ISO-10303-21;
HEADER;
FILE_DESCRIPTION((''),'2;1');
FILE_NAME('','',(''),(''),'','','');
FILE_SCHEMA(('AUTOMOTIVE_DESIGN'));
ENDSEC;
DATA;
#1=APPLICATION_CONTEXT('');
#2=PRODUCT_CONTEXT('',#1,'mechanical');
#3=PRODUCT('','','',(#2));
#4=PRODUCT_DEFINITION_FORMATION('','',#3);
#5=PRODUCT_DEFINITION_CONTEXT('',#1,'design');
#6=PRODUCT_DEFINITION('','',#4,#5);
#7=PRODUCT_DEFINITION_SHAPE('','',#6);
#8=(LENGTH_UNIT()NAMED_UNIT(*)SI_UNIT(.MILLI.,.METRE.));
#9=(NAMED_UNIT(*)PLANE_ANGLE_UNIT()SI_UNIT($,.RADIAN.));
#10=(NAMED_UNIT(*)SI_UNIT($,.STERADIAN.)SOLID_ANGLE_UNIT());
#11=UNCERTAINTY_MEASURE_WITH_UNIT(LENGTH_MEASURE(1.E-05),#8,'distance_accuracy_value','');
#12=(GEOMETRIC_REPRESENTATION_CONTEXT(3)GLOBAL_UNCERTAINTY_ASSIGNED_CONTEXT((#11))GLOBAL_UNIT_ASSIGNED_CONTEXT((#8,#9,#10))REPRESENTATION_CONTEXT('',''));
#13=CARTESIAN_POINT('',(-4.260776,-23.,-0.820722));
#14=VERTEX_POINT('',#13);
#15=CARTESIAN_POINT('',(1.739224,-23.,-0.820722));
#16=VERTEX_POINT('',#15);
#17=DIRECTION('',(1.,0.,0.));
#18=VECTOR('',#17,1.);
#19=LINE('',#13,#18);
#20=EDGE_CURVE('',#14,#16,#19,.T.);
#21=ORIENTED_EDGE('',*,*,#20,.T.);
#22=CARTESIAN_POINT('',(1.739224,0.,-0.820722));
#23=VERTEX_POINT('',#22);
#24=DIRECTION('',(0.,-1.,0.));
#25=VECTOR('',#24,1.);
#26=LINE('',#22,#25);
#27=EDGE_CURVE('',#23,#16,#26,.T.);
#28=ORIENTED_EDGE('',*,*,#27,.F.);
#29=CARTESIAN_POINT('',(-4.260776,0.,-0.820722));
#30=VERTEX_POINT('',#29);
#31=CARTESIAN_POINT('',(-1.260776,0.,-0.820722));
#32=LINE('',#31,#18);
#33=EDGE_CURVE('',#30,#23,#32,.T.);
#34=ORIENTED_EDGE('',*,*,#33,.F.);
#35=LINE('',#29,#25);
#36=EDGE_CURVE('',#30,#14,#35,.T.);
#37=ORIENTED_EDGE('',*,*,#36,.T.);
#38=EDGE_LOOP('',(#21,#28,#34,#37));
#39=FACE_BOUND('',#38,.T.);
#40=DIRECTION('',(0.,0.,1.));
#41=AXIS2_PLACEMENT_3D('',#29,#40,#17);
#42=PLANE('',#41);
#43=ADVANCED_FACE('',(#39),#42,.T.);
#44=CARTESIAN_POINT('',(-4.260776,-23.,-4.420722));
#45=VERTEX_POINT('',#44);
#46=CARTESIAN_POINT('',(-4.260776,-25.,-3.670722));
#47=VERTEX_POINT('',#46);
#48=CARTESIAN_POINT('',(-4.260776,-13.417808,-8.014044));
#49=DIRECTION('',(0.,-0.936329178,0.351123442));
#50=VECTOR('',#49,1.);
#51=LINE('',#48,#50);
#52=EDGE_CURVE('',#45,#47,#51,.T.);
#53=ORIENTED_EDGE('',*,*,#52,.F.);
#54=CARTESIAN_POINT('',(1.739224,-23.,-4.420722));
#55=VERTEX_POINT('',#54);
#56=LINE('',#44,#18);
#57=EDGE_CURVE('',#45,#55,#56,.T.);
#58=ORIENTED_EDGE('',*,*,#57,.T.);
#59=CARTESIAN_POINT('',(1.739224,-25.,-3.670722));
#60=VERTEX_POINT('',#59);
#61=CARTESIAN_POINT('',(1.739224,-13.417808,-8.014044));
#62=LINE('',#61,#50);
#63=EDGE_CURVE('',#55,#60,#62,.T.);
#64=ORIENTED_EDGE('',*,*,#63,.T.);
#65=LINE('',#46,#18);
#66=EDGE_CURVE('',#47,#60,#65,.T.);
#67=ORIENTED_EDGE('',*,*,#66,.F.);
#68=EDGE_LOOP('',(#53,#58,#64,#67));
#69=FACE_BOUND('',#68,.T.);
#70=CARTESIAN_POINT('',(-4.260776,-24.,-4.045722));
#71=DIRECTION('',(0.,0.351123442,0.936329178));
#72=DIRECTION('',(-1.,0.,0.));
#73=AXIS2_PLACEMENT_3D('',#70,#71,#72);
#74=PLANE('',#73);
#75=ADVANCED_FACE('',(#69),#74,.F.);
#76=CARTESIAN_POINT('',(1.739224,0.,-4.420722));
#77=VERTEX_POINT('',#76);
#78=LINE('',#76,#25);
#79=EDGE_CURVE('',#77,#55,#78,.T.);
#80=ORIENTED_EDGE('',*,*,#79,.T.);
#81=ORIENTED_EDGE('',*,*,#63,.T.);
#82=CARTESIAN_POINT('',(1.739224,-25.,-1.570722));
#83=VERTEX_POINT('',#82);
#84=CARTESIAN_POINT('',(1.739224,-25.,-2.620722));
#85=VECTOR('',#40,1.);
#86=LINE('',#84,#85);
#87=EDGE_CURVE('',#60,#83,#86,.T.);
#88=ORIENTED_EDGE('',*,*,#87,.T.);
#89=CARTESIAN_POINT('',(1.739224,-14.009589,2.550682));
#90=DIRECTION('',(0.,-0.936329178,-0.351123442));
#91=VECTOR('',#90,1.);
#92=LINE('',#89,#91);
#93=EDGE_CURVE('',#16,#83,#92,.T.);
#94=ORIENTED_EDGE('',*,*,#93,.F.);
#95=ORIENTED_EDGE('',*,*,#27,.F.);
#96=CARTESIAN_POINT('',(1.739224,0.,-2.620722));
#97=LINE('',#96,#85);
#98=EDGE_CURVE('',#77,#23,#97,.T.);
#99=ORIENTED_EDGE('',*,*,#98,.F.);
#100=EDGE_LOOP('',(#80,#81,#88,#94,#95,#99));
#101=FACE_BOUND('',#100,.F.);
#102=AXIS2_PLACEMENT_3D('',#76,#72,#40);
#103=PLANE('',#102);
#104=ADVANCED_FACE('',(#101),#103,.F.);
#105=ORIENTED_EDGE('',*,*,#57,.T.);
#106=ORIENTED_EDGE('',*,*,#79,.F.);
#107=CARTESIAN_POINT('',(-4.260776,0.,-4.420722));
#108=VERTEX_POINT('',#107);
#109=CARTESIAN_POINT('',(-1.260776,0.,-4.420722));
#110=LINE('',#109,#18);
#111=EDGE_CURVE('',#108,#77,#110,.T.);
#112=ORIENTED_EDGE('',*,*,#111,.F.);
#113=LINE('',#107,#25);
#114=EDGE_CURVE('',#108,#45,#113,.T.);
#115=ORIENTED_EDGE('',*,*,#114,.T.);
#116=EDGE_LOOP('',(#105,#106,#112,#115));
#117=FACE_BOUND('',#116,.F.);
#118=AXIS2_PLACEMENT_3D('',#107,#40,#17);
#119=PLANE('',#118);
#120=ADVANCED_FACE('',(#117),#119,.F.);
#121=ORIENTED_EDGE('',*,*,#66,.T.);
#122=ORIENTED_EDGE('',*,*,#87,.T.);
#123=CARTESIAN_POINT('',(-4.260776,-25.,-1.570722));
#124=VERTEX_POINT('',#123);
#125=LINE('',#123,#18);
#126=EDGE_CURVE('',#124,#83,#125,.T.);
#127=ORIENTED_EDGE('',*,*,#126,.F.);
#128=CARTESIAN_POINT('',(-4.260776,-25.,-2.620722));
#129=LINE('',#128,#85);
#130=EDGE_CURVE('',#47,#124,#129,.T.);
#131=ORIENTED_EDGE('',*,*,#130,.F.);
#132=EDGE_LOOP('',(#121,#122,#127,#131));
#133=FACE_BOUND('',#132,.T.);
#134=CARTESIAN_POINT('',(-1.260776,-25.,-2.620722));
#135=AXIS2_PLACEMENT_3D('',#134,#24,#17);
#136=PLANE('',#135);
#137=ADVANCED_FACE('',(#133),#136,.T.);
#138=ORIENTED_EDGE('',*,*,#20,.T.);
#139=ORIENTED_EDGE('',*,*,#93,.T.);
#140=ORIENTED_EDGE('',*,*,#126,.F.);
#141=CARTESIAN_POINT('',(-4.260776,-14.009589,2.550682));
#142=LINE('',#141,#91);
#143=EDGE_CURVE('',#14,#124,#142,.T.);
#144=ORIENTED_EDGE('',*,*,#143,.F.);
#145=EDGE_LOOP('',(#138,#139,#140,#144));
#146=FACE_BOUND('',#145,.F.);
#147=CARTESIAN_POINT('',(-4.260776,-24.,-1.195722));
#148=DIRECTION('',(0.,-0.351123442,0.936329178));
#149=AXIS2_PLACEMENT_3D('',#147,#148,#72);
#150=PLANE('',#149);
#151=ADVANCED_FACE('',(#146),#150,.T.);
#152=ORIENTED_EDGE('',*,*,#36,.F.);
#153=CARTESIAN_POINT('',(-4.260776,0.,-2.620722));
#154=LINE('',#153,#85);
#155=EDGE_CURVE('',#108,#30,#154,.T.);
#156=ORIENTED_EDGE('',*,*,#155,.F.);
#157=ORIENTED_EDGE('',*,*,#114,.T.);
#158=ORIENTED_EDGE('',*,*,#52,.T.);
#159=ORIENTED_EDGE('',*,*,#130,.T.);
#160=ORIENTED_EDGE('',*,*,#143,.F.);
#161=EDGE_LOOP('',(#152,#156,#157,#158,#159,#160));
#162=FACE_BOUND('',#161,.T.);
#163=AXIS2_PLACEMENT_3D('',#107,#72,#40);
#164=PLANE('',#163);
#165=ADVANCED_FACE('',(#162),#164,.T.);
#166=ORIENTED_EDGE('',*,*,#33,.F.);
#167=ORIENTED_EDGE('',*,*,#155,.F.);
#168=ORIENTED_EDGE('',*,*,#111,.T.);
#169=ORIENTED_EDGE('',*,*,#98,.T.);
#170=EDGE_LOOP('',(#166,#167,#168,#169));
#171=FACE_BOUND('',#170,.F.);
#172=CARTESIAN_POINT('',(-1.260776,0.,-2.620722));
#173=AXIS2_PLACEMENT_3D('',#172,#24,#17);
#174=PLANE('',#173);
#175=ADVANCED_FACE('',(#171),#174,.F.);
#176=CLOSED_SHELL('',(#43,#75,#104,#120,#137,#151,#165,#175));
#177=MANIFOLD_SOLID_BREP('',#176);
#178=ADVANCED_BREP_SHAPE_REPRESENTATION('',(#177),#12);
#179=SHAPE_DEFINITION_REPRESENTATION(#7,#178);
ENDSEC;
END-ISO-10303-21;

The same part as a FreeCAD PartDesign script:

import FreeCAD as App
import Part
import Sketcher
from FreeCAD import Vector


def edges_at(feature, points):
    """Names of the edges that pass closest to the given points."""
    edges = feature.Shape.Edges
    near = lambda p: min(range(len(edges)), key=lambda i: edges[i].distToShape(Part.Vertex(*p))[0])
    return sorted({f"Edge{near(p) + 1}" for p in points})


def add_polygon(sketch, points):
    """Adds a closed chain of lines whose ends are joined by coincident constraints."""
    first, n = sketch.GeometryCount, len(points)
    for a, b in zip(points, points[1:] + points[:1]):
        sketch.addGeometry(Part.LineSegment(App.Vector(*a, 0), App.Vector(*b, 0)), False)
    for i in range(n):
        sketch.addConstraint(Sketcher.Constraint("Coincident", first + i, 2, first + (i + 1) % n, 1))

doc = App.newDocument("Part")
body = doc.addObject("PartDesign::Body", "Body")

sketch1 = body.newObject("Sketcher::SketchObject", "Sketch")
sketch1.AttachmentSupport = (doc.getObject("XZ_Plane"), [""])
sketch1.MapMode = "FlatFace"
add_polygon(sketch1, [(-4.260776, -0.820722), (-4.260776, -4.420722), (1.739224, -4.420722), (1.739224, -0.820722)])
sketch1.addConstraint([
    Sketcher.Constraint("Vertical", 0),
    Sketcher.Constraint("Horizontal", 1),
    Sketcher.Constraint("Vertical", 2),
    Sketcher.Constraint("Horizontal", 3),
    Sketcher.Constraint("DistanceX", 1, 1, 1, 2, 6.0),
    Sketcher.Constraint("DistanceY", 0, 2, 0, 1, 3.6),
    Sketcher.Constraint("DistanceY", 0, 2, -1, 1, 4.420722),
    Sketcher.Constraint("DistanceX", 0, 2, -1, 1, 4.260776),
])
pad1 = body.newObject("PartDesign::Pad", "Pad")
pad1.Profile = sketch1
pad1.Length = 25
doc.recompute()

chamfer = body.newObject("PartDesign::Chamfer", "Chamfer")
chamfer.Base = (pad1, edges_at(pad1, [(-1.261, -25, -0.821), (-1.261, -25, -4.421)]))
chamfer.ChamferType = "Two distances"
chamfer.Size = 2
chamfer.Size2 = 0.75

doc.recompute()
